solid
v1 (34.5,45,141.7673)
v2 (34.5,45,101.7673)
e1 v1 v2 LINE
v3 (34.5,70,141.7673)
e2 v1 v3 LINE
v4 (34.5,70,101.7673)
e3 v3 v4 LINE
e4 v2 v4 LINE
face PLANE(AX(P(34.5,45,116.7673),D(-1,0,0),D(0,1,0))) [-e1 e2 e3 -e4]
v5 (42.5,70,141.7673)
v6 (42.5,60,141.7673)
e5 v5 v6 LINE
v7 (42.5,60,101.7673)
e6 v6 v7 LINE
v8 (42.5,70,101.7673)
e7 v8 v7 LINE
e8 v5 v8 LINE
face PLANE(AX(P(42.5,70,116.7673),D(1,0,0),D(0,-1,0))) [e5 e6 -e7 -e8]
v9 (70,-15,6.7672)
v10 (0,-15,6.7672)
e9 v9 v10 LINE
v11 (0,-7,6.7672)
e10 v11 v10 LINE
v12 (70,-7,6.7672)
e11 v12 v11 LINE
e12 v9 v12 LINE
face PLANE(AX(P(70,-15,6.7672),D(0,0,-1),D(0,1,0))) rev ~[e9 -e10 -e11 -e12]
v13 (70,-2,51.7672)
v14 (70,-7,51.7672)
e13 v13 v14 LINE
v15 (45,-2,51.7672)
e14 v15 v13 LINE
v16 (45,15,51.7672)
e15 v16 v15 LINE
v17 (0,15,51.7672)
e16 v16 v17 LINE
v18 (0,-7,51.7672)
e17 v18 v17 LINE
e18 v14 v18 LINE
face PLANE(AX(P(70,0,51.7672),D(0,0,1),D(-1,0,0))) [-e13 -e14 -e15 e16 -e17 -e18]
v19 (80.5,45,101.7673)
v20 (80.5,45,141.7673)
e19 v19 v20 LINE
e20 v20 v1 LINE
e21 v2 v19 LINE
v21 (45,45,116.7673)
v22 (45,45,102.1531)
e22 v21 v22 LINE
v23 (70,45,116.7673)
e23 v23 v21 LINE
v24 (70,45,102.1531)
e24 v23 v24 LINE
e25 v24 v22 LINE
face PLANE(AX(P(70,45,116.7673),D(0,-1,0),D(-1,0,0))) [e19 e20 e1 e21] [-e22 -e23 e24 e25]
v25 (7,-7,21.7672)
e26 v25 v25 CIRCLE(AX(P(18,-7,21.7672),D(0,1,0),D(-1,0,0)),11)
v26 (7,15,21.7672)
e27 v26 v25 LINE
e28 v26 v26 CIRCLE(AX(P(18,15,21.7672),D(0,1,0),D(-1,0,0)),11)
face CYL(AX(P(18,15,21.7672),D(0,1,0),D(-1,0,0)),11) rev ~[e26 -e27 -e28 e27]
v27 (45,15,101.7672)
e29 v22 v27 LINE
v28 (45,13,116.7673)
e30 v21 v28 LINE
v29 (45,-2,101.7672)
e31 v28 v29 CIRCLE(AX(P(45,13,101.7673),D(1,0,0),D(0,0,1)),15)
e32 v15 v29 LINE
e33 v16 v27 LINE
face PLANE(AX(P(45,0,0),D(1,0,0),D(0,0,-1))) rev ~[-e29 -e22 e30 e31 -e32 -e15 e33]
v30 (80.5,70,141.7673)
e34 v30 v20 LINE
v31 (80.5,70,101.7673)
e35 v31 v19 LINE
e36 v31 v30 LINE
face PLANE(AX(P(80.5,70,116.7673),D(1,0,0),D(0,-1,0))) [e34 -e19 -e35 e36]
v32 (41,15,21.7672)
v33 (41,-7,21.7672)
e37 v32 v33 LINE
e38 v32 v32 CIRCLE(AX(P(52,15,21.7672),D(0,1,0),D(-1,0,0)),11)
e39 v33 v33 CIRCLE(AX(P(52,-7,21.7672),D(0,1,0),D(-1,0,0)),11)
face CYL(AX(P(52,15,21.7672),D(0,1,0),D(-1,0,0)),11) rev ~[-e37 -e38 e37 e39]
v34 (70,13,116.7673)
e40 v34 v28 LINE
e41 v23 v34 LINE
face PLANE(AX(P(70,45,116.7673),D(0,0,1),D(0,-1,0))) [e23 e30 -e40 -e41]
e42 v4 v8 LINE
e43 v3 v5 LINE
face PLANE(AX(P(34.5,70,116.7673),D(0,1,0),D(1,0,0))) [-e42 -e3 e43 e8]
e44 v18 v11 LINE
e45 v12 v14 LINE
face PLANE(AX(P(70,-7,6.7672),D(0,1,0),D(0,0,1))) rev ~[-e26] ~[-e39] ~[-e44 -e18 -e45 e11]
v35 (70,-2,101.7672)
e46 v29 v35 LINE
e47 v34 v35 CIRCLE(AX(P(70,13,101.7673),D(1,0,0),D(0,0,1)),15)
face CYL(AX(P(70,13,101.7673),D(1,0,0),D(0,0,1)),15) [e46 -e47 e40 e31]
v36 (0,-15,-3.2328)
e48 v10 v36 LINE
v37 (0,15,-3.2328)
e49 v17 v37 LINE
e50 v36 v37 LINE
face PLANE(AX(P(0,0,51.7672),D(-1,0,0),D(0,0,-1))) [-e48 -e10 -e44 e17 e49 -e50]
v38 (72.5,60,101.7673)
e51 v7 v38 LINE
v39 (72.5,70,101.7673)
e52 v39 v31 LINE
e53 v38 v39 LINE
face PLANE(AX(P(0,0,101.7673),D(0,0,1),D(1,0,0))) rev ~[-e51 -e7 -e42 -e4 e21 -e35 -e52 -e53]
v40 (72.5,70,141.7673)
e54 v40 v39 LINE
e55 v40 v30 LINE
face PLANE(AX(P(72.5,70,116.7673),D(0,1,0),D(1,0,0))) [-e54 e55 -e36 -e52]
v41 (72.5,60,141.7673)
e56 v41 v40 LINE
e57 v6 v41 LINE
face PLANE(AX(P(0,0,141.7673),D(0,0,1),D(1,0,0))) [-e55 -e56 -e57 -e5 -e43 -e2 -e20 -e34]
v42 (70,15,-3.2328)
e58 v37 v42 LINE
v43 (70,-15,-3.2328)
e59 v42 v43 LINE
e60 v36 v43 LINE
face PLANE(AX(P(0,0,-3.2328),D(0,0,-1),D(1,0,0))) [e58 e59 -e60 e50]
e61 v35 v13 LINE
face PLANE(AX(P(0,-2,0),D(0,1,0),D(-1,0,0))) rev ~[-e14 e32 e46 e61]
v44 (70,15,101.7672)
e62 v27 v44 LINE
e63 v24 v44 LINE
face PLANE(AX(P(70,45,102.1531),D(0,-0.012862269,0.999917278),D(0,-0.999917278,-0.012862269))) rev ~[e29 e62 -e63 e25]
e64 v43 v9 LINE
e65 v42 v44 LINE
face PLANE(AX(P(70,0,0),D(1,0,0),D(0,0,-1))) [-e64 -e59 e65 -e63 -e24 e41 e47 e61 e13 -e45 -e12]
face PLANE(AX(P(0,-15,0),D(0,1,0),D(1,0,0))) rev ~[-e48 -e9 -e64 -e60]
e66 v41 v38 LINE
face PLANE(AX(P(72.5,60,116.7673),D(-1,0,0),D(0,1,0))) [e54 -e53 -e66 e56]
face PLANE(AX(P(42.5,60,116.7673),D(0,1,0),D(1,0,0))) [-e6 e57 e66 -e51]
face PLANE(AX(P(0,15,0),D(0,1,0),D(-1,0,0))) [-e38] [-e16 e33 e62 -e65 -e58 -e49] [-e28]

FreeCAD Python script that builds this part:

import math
import FreeCAD as App
import Part
import Sketcher
from FreeCAD import Vector

doc = App.newDocument("Part")
params = doc.addObject("Spreadsheet::Sheet", "Params")
for row, (alias, value) in enumerate([
    ("sketch1_width", "70 mm"),
    ("sketch1_height", "55 mm"),
    ("pad1_length", "30 mm"),
    ("sketch2_width", "8 mm"),
    ("sketch2_height", "45 mm"),
    ("pocket1_length", "90 mm"),
    ("sketch3_diameter", "22 mm"),
    ("pocket2_length", "50 mm"),
    ("sketch4_width", "25 mm"),
    ("sketch4_height", "50 mm"),
    ("pad2_length", "17 mm"),
    ("sketch5_radius", "15 mm"),
    ("sketch5_width", "32 mm"),
    ("pad3_length", "25 mm"),
    ("sketch6_width", "46 mm"),
    ("sketch6_width2", "8 mm"),
    ("sketch6_height", "25 mm"),
    ("sketch6_height2", "10 mm"),
    ("pad4_length", "25 mm"),
    ("pad4_length2", "15 mm"),
], start=1):
    params.set(f"A{row}", alias)
    params.set(f"B{row}", "=" + value)
    params.setAlias(f"B{row}", alias)

body = doc.addObject("PartDesign::Body", "Body")

sketch1 = body.newObject("Sketcher::SketchObject", "Sketch")
sketch1.AttachmentSupport = (doc.getObject("XZ_Plane"), [""])
sketch1.MapMode = "FlatFace"
sketch1.addGeometry([
    Part.LineSegment(Vector(70, -3, 0), Vector(0, -3, 0)),
    Part.LineSegment(Vector(0, -3, 0), Vector(0, 52, 0)),
    Part.LineSegment(Vector(0, 52, 0), Vector(70, 52, 0)),
    Part.LineSegment(Vector(70, 52, 0), Vector(70, -3, 0)),
], False)
sketch1.addConstraint([
    Sketcher.Constraint("Coincident", 0, 2, 1, 1),
    Sketcher.Constraint("Coincident", 1, 2, 2, 1),
    Sketcher.Constraint("Coincident", 2, 2, 3, 1),
    Sketcher.Constraint("Coincident", 3, 2, 0, 1),
    Sketcher.Constraint("Horizontal", 0),
    Sketcher.Constraint("Vertical", 1),
    Sketcher.Constraint("Horizontal", 2),
    Sketcher.Constraint("Vertical", 3),
    Sketcher.Constraint("PointOnObject", 0, 2, -2),
    Sketcher.Constraint("DistanceX", 0, 2, 0, 1, 70.0),
    Sketcher.Constraint("DistanceY", 1, 1, 1, 2, 55.0),
    Sketcher.Constraint("DistanceY", 0, 2, -1, 1, 3.2328),
])
sketch1.setExpression("Constraints[9]", "Params.sketch1_width")
sketch1.setExpression("Constraints[10]", "Params.sketch1_height")
pad1 = body.newObject("PartDesign::Pad", "Pad")
pad1.Profile = sketch1
pad1.setExpression("Length", "Params.pad1_length")
pad1.Midplane = True

sketch2 = body.newObject("Sketcher::SketchObject", "Sketch001")
sketch2.AttachmentSupport = (doc.getObject("YZ_Plane"), [""])
sketch2.MapMode = "FlatFace"
sketch2.AttachmentOffset = App.Placement(Vector(0, 0, 70), App.Rotation())
sketch2.addGeometry([
    Part.LineSegment(Vector(-15, 52, 0), Vector(-15, 7, 0)),
    Part.LineSegment(Vector(-15, 7, 0), Vector(-7, 7, 0)),
    Part.LineSegment(Vector(-7, 7, 0), Vector(-7, 52, 0)),
    Part.LineSegment(Vector(-7, 52, 0), Vector(-15, 52, 0)),
], False)
sketch2.addConstraint([
    Sketcher.Constraint("Coincident", 0, 2, 1, 1),
    Sketcher.Constraint("Coincident", 1, 2, 2, 1),
    Sketcher.Constraint("Coincident", 2, 2, 3, 1),
    Sketcher.Constraint("Coincident", 3, 2, 0, 1),
    Sketcher.Constraint("Vertical", 0),
    Sketcher.Constraint("Horizontal", 1),
    Sketcher.Constraint("Vertical", 2),
    Sketcher.Constraint("Horizontal", 3),
    Sketcher.Constraint("DistanceX", 1, 1, 1, 2, 8.0),
    Sketcher.Constraint("DistanceY", 0, 2, 0, 1, 45.0),
    Sketcher.Constraint("DistanceX", 0, 2, -1, 1, 15.0),
    Sketcher.Constraint("DistanceY", -1, 1, 0, 2, 6.7672),
])
sketch2.setExpression("Constraints[8]", "Params.sketch2_width")
sketch2.setExpression("Constraints[9]", "Params.sketch2_height")
pocket1 = body.newObject("PartDesign::Pocket", "Pocket")
pocket1.Profile = sketch2
pocket1.setExpression("Length", "Params.pocket1_length")

sketch3 = body.newObject("Sketcher::SketchObject", "Sketch002")
sketch3.AttachmentSupport = (doc.getObject("XZ_Plane"), [""])
sketch3.MapMode = "FlatFace"
sketch3.AttachmentOffset = App.Placement(Vector(0, 0, -15), App.Rotation())
sketch3.addGeometry([
    Part.Circle(Vector(18, 22, 0), Vector(0, 0, 1), 11),
    Part.Circle(Vector(52, 22, 0), Vector(0, 0, 1), 11),
], False)
sketch3.addConstraint([
    Sketcher.Constraint("Equal", 0, 1),
    Sketcher.Constraint("Horizontal", 0, 3, 1, 3),
    Sketcher.Constraint("Diameter", 0, 22.0),
    Sketcher.Constraint("DistanceX", -1, 1, 0, 3, 18.0),
    Sketcher.Constraint("DistanceX", 0, 3, 1, 3, 34.0),
    Sketcher.Constraint("DistanceY", -1, 1, 0, 3, 21.7672),
])
sketch3.setExpression("Constraints[2]", "Params.sketch3_diameter")
pocket2 = body.newObject("PartDesign::Pocket", "Pocket001")
pocket2.Profile = sketch3
pocket2.setExpression("Length", "Params.pocket2_length")
pocket2.Reversed = True

sketch4 = body.newObject("Sketcher::SketchObject", "Sketch003")
sketch4.AttachmentSupport = (doc.getObject("XZ_Plane"), [""])
sketch4.MapMode = "FlatFace"
sketch4.AttachmentOffset = App.Placement(Vector(0, 0, -15), App.Rotation())
sketch4.addGeometry([
    Part.LineSegment(Vector(70, 52, 0), Vector(45, 52, 0)),
    Part.LineSegment(Vector(45, 52, 0), Vector(45, 102, 0)),
    Part.LineSegment(Vector(45, 102, 0), Vector(70, 102, 0)),
    Part.LineSegment(Vector(70, 102, 0), Vector(70, 52, 0)),
], False)
sketch4.addConstraint([
    Sketcher.Constraint("Coincident", 0, 2, 1, 1),
    Sketcher.Constraint("Coincident", 1, 2, 2, 1),
    Sketcher.Constraint("Coincident", 2, 2, 3, 1),
    Sketcher.Constraint("Coincident", 3, 2, 0, 1),
    Sketcher.Constraint("Horizontal", 0),
    Sketcher.Constraint("Vertical", 1),
    Sketcher.Constraint("Horizontal", 2),
    Sketcher.Constraint("Vertical", 3),
    Sketcher.Constraint("DistanceX", 0, 2, 0, 1, 25.0),
    Sketcher.Constraint("DistanceY", 1, 1, 1, 2, 50.0),
    Sketcher.Constraint("DistanceX", -1, 1, 0, 2, 45.0),
    Sketcher.Constraint("DistanceY", -1, 1, 0, 2, 51.7672),
])
sketch4.setExpression("Constraints[8]", "Params.sketch4_width")
sketch4.setExpression("Constraints[9]", "Params.sketch4_height")
pad2 = body.newObject("PartDesign::Pad", "Pad001")
pad2.Profile = sketch4
pad2.setExpression("Length", "Params.pad2_length")

sketch5 = body.newObject("Sketcher::SketchObject", "Sketch004")
sketch5.AttachmentSupport = (doc.getObject("YZ_Plane"), [""])
sketch5.MapMode = "FlatFace"
sketch5.AttachmentOffset = App.Placement(Vector(0, 0, 70), App.Rotation())
sketch5.addGeometry([
    Part.ArcOfCircle(Part.Circle(Vector(13, 102, 0), Vector(0, 0, 1), 15), math.radians(90), math.radians(180)),
    Part.LineSegment(Vector(-2, 102, 0), Vector(15, 102, 0)),
    Part.LineSegment(Vector(15, 102, 0), Vector(45, 102, 0)),
    Part.LineSegment(Vector(45, 102, 0), Vector(45, 117, 0)),
    Part.LineSegment(Vector(45, 117, 0), Vector(13, 117, 0)),
], False)
sketch5.addConstraint([
    Sketcher.Constraint("Coincident", 0, 2, 1, 1),
    Sketcher.Constraint("Coincident", 1, 2, 2, 1),
    Sketcher.Constraint("Coincident", 2, 2, 3, 1),
    Sketcher.Constraint("Coincident", 3, 2, 4, 1),
    Sketcher.Constraint("Tangent", 4, 2, 0, 1),
    Sketcher.Constraint("Horizontal", 1),
    Sketcher.Constraint("Vertical", 3),
    Sketcher.Constraint("Horizontal", 4),
    Sketcher.Constraint("Radius", 0, 15.0),
    Sketcher.Constraint("DistanceX", 4, 2, 4, 1, 32.0),
    Sketcher.Constraint("DistanceX", -1, 1, 1, 2, 15.0),
    Sketcher.Constraint("DistanceX", 1, 2, 2, 2, 30.0),
    Sketcher.Constraint("DistanceY", 1, 2, 3, 2, 15.0),
    Sketcher.Constraint("DistanceY", 3, 1, 3, 2, 14.6142),
    Sketcher.Constraint("DistanceY", -1, 1, 2, 2, 102.153),
])
sketch5.setExpression("Constraints[8]", "Params.sketch5_radius")
sketch5.setExpression("Constraints[9]", "Params.sketch5_width")
pad3 = body.newObject("PartDesign::Pad", "Pad002")
pad3.Profile = sketch5
pad3.setExpression("Length", "Params.pad3_length")
pad3.Reversed = True

sketch6 = body.newObject("Sketcher::SketchObject", "Sketch005")
sketch6.AttachmentSupport = (doc.getObject("XY_Plane"), [""])
sketch6.MapMode = "FlatFace"
sketch6.AttachmentOffset = App.Placement(Vector(0, 0, 116.7673), App.Rotation())
sketch6.addGeometry([
    Part.LineSegment(Vector(34, 45, 0), Vector(80, 45, 0)),
    Part.LineSegment(Vector(80, 45, 0), Vector(80, 70, 0)),
    Part.LineSegment(Vector(80, 70, 0), Vector(72, 70, 0)),
    Part.LineSegment(Vector(72, 70, 0), Vector(72, 60, 0)),
    Part.LineSegment(Vector(72, 60, 0), Vector(42, 60, 0)),
    Part.LineSegment(Vector(42, 60, 0), Vector(42, 70, 0)),
    Part.LineSegment(Vector(42, 70, 0), Vector(34, 70, 0)),
    Part.LineSegment(Vector(34, 70, 0), Vector(34, 45, 0)),
], False)
sketch6.addConstraint([
    Sketcher.Constraint("Coincident", 0, 2, 1, 1),
    Sketcher.Constraint("Coincident", 1, 2, 2, 1),
    Sketcher.Constraint("Coincident", 2, 2, 3, 1),
    Sketcher.Constraint("Coincident", 3, 2, 4, 1),
    Sketcher.Constraint("Coincident", 4, 2, 5, 1),
    Sketcher.Constraint("Coincident", 5, 2, 6, 1),
    Sketcher.Constraint("Coincident", 6, 2, 7, 1),
    Sketcher.Constraint("Coincident", 7, 2, 0, 1),
    Sketcher.Constraint("Horizontal", 0),
    Sketcher.Constraint("Vertical", 1),
    Sketcher.Constraint("Horizontal", 2),
    Sketcher.Constraint("Vertical", 3),
    Sketcher.Constraint("Horizontal", 4),
    Sketcher.Constraint("Vertical", 5),
    Sketcher.Constraint("Horizontal", 6),
    Sketcher.Constraint("Vertical", 7),
    Sketcher.Constraint("Horizontal", 2, 2, 5, 2),
    Sketcher.Constraint("Equal", 2, 6),
    Sketcher.Constraint("DistanceX", 0, 1, 0, 2, 46.0),
    Sketcher.Constraint("DistanceX", 2, 2, 2, 1, 8.0),
    Sketcher.Constraint("DistanceY", 1, 1, 1, 2, 25.0),
    Sketcher.Constraint("DistanceY", 3, 2, 3, 1, 10.0),
    Sketcher.Constraint("DistanceY", -1, 1, 0, 2, 45.0),
    Sketcher.Constraint("DistanceX", -1, 1, 0, 2, 80.5),
])
sketch6.setExpression("Constraints[18]", "Params.sketch6_width")
sketch6.setExpression("Constraints[19]", "Params.sketch6_width2")
sketch6.setExpression("Constraints[20]", "Params.sketch6_height")
sketch6.setExpression("Constraints[21]", "Params.sketch6_height2")
pad4 = body.newObject("PartDesign::Pad", "Pad003")
pad4.Profile = sketch6
pad4.Type = "TwoLengths"
pad4.setExpression("Length", "Params.pad4_length")
pad4.setExpression("Length2", "Params.pad4_length2")

doc.recompute()
